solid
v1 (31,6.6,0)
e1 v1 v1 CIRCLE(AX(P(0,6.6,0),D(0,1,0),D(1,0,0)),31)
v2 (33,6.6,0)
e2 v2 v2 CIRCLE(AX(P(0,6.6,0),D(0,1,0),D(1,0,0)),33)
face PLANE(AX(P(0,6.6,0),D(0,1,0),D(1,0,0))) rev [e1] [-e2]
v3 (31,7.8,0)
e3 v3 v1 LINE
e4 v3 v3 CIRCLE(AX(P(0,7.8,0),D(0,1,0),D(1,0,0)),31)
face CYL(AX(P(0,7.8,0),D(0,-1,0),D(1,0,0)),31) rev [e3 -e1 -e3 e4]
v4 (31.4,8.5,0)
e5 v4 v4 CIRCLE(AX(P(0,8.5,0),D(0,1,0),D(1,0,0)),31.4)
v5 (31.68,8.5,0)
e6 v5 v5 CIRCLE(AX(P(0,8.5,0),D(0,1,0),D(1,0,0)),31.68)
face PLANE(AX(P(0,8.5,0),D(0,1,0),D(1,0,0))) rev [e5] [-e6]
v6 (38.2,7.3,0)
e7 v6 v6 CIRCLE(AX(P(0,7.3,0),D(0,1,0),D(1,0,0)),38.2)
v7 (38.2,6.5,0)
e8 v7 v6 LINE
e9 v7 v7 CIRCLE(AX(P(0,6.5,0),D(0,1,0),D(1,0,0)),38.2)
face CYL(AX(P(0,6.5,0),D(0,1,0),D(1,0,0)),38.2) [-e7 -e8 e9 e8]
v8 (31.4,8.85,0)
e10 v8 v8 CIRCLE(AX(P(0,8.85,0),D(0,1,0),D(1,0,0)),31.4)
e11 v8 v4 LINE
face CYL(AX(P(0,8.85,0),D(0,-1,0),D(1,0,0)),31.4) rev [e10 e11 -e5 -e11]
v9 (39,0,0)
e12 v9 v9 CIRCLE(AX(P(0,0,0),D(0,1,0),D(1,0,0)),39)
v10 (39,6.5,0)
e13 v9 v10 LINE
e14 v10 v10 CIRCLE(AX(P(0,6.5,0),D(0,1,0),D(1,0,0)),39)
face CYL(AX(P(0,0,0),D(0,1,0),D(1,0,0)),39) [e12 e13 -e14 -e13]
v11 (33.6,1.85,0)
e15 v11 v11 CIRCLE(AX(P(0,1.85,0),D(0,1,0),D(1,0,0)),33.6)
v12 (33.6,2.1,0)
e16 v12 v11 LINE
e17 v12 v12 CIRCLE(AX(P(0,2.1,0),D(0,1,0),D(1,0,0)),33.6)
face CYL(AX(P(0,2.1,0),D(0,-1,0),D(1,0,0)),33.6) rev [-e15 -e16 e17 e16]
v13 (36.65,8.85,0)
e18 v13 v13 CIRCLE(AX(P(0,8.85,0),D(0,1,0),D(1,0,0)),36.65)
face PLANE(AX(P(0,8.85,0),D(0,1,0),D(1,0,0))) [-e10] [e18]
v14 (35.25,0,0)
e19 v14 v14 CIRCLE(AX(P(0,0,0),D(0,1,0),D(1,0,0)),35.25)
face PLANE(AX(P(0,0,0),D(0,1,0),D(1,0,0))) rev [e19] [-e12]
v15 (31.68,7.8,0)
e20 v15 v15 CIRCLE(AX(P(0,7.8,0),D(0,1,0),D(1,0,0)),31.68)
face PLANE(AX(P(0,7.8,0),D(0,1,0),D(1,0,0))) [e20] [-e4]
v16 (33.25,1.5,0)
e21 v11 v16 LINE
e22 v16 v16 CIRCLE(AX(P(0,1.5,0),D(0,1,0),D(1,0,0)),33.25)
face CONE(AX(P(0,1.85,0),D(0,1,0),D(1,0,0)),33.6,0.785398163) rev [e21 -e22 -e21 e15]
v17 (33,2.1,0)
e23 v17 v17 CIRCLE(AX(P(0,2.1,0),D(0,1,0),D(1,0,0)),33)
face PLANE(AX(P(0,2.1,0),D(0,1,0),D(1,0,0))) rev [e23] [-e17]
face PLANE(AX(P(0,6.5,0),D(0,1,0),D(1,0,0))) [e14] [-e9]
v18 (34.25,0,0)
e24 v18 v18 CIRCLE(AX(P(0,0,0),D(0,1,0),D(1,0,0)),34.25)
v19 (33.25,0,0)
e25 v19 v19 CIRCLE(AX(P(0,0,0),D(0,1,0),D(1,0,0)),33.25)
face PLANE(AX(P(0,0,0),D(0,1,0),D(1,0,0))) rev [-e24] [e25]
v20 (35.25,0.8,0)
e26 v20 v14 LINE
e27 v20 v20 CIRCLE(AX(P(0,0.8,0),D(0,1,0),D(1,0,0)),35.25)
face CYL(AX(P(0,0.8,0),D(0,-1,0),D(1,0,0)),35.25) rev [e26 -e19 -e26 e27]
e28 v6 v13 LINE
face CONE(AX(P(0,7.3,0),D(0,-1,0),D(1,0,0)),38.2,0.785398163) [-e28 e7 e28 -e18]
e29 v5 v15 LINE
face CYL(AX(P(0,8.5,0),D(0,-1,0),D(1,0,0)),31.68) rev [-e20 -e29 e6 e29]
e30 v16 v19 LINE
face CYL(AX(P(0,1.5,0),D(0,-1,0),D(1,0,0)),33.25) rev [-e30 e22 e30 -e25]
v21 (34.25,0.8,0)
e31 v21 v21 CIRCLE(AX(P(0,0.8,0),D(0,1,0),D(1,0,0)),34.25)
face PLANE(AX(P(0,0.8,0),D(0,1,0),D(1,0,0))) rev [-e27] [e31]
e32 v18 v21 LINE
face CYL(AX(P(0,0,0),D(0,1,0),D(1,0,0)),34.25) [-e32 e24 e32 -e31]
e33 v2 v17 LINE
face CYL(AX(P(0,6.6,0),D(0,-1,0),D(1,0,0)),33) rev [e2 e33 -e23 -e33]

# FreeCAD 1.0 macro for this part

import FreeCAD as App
import Part
import Sketcher
Q = App.Units.Quantity


def add_polygon(sketch, points):
    """Adds a closed chain of lines whose ends are joined by coincident constraints."""
    first, n = sketch.GeometryCount, len(points)
    for a, b in zip(points, points[1:] + points[:1]):
        sketch.addGeometry(Part.LineSegment(App.Vector(*a, 0), App.Vector(*b, 0)), False)
    for i in range(n):
        sketch.addConstraint(Sketcher.Constraint("Coincident", first + i, 2, first + (i + 1) % n, 1))

doc = App.newDocument("Part")
params = doc.addObject("Spreadsheet::Sheet", "Params")
for row, (alias, value) in enumerate([
    ("sketch1_width", "2 mm"),
    ("sketch1_width2", "1 mm"),
    ("sketch1_width3", "0.8 mm"),
    ("sketch1_width4", "0.6 mm"),
    ("sketch1_height", "6.5 mm"),
    ("revolution_angle", "360 deg"),
], start=1):
    params.set(f"A{row}", alias)
    params.set(f"B{row}", "=" + value)
    params.setAlias(f"B{row}", alias)

body = doc.addObject("PartDesign::Body", "Body")

sketch1 = doc.addObject("Sketcher::SketchObject", "Sketch")
body.addObject(sketch1)
sketch1.AttachmentSupport = (doc.XY_Plane, [""])
sketch1.MapMode = "FlatFace"
add_polygon(sketch1, [(39, 0), (39, 6.5), (38.2, 6.5), (38.2, 7.3), (36.65, 8.85), (31.4, 8.85), (31.4, 8.5), (31.68, 8.5), (31.68, 7.8), (31, 7.8), (31, 6.6), (33, 6.6), (33, 2.1), (33.6, 2.1), (33.6, 1.85), (33.25, 1.5), (33.25, 0), (34.25, 0), (34.25, 0.8), (35.25, 0.8), (35.25, 0)])
sketch1.addConstraint([
    Sketcher.Constraint("Vertical", 0),
    Sketcher.Constraint("Horizontal", 1),
    Sketcher.Constraint("Vertical", 2),
    Sketcher.Constraint("Horizontal", 4),
    Sketcher.Constraint("Vertical", 5),
    Sketcher.Constraint("Horizontal", 6),
    Sketcher.Constraint("Vertical", 7),
    Sketcher.Constraint("Horizontal", 8),
    Sketcher.Constraint("Vertical", 9),
    Sketcher.Constraint("Horizontal", 10),
    Sketcher.Constraint("Vertical", 11),
    Sketcher.Constraint("Horizontal", 12),
    Sketcher.Constraint("Vertical", 13),
    Sketcher.Constraint("Vertical", 15),
    Sketcher.Constraint("Horizontal", 16),
    Sketcher.Constraint("Vertical", 17),
    Sketcher.Constraint("Horizontal", 18),
    Sketcher.Constraint("Vertical", 19),
    Sketcher.Constraint("Horizontal", 20),
    Sketcher.Constraint("PointOnObject", 15, 2, -1),
    Sketcher.Constraint("PointOnObject", 19, 2, -1),
    Sketcher.Constraint("Perpendicular", 3, 14),
    Sketcher.Constraint("Equal", 16, 18),
    Sketcher.Constraint("Equal", 1, 2),
    Sketcher.Constraint("Equal", 2, 17),
    Sketcher.Constraint("DistanceX", 10, 1, 10, 2, Q("2 mm")),
    Sketcher.Constraint("DistanceX", 16, 1, 16, 2, Q("1 mm")),
    Sketcher.Constraint("Angle", 3, Q("135 deg")),
    Sketcher.Constraint("DistanceX", 1, 2, 1, 1, Q("0.8 mm")),
    Sketcher.Constraint("DistanceX", 12, 1, 12, 2, Q("0.6 mm")),
    Sketcher.Constraint("DistanceY", 0, 1, 0, 2, Q("6.5 mm")),
    Sketcher.Constraint("DistanceY", 7, 2, 7, 1, Q("0.7 mm")),
    Sketcher.Constraint("DistanceY", 9, 2, 9, 1, Q("1.2 mm")),
    Sketcher.Constraint("DistanceY", 11, 2, 11, 1, Q("4.5 mm")),
    Sketcher.Constraint("DistanceY", 15, 2, 15, 1, Q("1.5 mm")),
    Sketcher.Constraint("DistanceX", -1, 1, 0, 2, Q("39 mm")),
    Sketcher.Constraint("DistanceX", -1, 1, 8, 2, Q("31 mm")),
    Sketcher.Constraint("DistanceY", 1, 2, 5, 2, Q("2 mm")),
    Sketcher.Constraint("DistanceX", 4, 2, 4, 1, Q("5.25 mm")),
    Sketcher.Constraint("DistanceX", 6, 1, 6, 2, Q("0.28 mm")),
    Sketcher.Constraint("DistanceX", 8, 2, 8, 1, Q("0.68 mm")),
    Sketcher.Constraint("DistanceX", 20, 1, 20, 2, Q("3.75 mm")),
])
sketch1.setExpression("Constraints[46]", "Params.sketch1_width")
sketch1.setExpression("Constraints[47]", "Params.sketch1_width2")
sketch1.setExpression("Constraints[49]", "Params.sketch1_width3")
sketch1.setExpression("Constraints[50]", "Params.sketch1_width4")
sketch1.setExpression("Constraints[51]", "Params.sketch1_height")
revolution = doc.addObject("PartDesign::Revolution", "Revolution")
body.addObject(revolution)
revolution.Profile = sketch1
revolution.ReferenceAxis = (sketch1, ["V_Axis"])
revolution.setExpression("Angle", "Params.revolution_angle")

doc.recompute()
